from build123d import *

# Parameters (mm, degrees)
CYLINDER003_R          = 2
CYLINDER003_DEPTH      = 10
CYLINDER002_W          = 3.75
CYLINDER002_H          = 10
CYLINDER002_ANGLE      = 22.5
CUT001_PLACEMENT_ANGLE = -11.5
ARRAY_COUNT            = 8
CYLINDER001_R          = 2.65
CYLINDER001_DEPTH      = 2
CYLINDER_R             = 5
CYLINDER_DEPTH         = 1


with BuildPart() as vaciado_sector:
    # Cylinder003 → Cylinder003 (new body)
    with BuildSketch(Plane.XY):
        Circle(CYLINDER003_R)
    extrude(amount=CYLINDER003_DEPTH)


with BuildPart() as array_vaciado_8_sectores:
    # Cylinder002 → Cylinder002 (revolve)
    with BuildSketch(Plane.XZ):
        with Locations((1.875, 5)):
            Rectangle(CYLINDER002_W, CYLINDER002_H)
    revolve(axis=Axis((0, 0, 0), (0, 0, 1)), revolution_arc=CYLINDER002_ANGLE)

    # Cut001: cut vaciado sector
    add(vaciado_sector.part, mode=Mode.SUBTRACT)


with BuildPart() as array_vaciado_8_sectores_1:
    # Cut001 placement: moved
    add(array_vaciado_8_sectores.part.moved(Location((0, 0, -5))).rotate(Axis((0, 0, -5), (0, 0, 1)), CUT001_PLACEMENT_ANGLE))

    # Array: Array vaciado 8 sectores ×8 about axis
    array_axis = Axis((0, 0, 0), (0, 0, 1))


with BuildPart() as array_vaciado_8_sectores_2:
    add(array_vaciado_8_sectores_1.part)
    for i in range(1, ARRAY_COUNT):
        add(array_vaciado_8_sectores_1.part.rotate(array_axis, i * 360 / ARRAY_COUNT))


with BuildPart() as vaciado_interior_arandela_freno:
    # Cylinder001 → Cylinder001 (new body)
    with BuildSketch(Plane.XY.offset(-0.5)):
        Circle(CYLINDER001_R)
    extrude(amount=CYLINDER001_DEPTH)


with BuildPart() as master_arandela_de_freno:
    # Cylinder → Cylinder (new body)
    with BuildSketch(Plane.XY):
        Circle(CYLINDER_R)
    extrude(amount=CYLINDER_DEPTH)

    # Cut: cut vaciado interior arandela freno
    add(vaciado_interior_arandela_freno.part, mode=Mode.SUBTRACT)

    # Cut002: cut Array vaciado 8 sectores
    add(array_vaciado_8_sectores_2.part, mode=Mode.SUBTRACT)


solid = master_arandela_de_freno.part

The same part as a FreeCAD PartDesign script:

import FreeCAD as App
import Part
import Sketcher

V = App.Vector
Q = App.Units.Quantity

doc = App.newDocument("Part")
body = doc.addObject("PartDesign::Body", "Body")

# Sketch on XY plane
sketch1 = doc.addObject("Sketcher::SketchObject", "Sketch")
body.addObject(sketch1)
sketch1.AttachmentSupport = (doc.XY_Plane, [""])
sketch1.MapMode = "FlatFace"
sketch1.addGeometry(Part.Circle(V(0, 0, 0), V(0, 0, 1), 2), False)
sketch1.addConstraint([
    Sketcher.Constraint("Coincident", 0, 3, -1, 1),
    Sketcher.Constraint("Diameter", 0, Q("4 mm")),
])
pad1 = doc.addObject("PartDesign::Pad", "Pad")
body.addObject(pad1)
pad1.Profile = sketch1
pad1.Length = 10
body2 = doc.addObject("PartDesign::Body", "Body001")

# Sketch on XZ plane
sketch2 = doc.addObject("Sketcher::SketchObject", "Sketch001")
body2.addObject(sketch2)
sketch2.AttachmentSupport = (doc.getObject("XZ_Plane001"), [""])
sketch2.MapMode = "FlatFace"
sketch2.addGeometry([
    Part.LineSegment(V(0, 10, 0), V(0, 0, 0)),
    Part.LineSegment(V(0, 0, 0), V(3.8, 0, 0)),
    Part.LineSegment(V(3.8, 0, 0), V(3.8, 10, 0)),
    Part.LineSegment(V(3.8, 10, 0), V(0, 10, 0)),
], False)
sketch2.addConstraint([
    Sketcher.Constraint("Coincident", 0, 2, 1, 1),
    Sketcher.Constraint("Coincident", 1, 2, 2, 1),
    Sketcher.Constraint("Coincident", 2, 2, 3, 1),
    Sketcher.Constraint("Coincident", 3, 2, 0, 1),
    Sketcher.Constraint("Vertical", 0),
    Sketcher.Constraint("Horizontal", 1),
    Sketcher.Constraint("Vertical", 2),
    Sketcher.Constraint("Horizontal", 3),
    Sketcher.Constraint("Coincident", 0, 2, -1, 1),
    Sketcher.Constraint("DistanceY", 0, 2, 0, 1, Q("10 mm")),
    Sketcher.Constraint("DistanceX", 1, 1, 1, 2, Q("3.75 mm")),
])
revolution = doc.addObject("PartDesign::Revolution", "Revolution")
body2.addObject(revolution)
revolution.Profile = sketch2
revolution.ReferenceAxis = (sketch2, ["V_Axis"])
revolution.Angle = 22.5
doc.recompute()

boolean = doc.addObject("PartDesign::Boolean", "Boolean")
body2.addObject(boolean)
boolean.Type = "Cut"
boolean.addObjects([body])
body3 = doc.addObject("PartDesign::Body", "Body002")
doc.recompute()

body2.Placement = App.Placement(V(0, 0, -5), App.Rotation(V(0, 0, 1), 348.5))
boolean2 = doc.addObject("PartDesign::Boolean", "Boolean001")
body3.addObject(boolean2)
boolean2.Type = "Fuse"
boolean2.addObjects([body2])
body4 = doc.addObject("PartDesign::Body", "Body003")
body4.AllowCompound = True
doc.recompute()

body4.BaseFeature = body3
doc.recompute()

body5 = doc.addObject("PartDesign::Body", "Body004")
body5.BaseFeature = body3
body5.Placement = App.Placement(V(0, 0, 0), App.Rotation(V(0, 0, 1), 45))
boolean3 = doc.addObject("PartDesign::Boolean", "Boolean002")
body4.addObject(boolean3)
boolean3.Type = "Fuse"
boolean3.addObjects([body5])
doc.recompute()

body6 = doc.addObject("PartDesign::Body", "Body005")
body6.BaseFeature = body3
body6.Placement = App.Placement(V(0, 0, 0), App.Rotation(V(0, 0, 1), 90))
boolean4 = doc.addObject("PartDesign::Boolean", "Boolean003")
body4.addObject(boolean4)
boolean4.Type = "Fuse"
boolean4.addObjects([body6])
doc.recompute()

body7 = doc.addObject("PartDesign::Body", "Body006")
body7.BaseFeature = body3
body7.Placement = App.Placement(V(0, 0, 0), App.Rotation(V(0, 0, 1), 135))
boolean5 = doc.addObject("PartDesign::Boolean", "Boolean004")
body4.addObject(boolean5)
boolean5.Type = "Fuse"
boolean5.addObjects([body7])
doc.recompute()

body8 = doc.addObject("PartDesign::Body", "Body007")
body8.BaseFeature = body3
body8.Placement = App.Placement(V(0, 0, 0), App.Rotation(V(0, 0, 1), 180))
boolean6 = doc.addObject("PartDesign::Boolean", "Boolean005")
body4.addObject(boolean6)
boolean6.Type = "Fuse"
boolean6.addObjects([body8])
doc.recompute()

body9 = doc.addObject("PartDesign::Body", "Body008")
body9.BaseFeature = body3
body9.Placement = App.Placement(V(0, 0, 0), App.Rotation(V(0, 0, 1), 225))
boolean7 = doc.addObject("PartDesign::Boolean", "Boolean006")
body4.addObject(boolean7)
boolean7.Type = "Fuse"
boolean7.addObjects([body9])
doc.recompute()

body10 = doc.addObject("PartDesign::Body", "Body009")
body10.BaseFeature = body3
body10.Placement = App.Placement(V(0, 0, 0), App.Rotation(V(0, 0, 1), 270))
boolean8 = doc.addObject("PartDesign::Boolean", "Boolean007")
body4.addObject(boolean8)
boolean8.Type = "Fuse"
boolean8.addObjects([body10])
doc.recompute()

body3.Placement = App.Placement(V(0, 0, 0), App.Rotation(V(0, 0, 1), 315))
boolean9 = doc.addObject("PartDesign::Boolean", "Boolean008")
body4.addObject(boolean9)
boolean9.Type = "Fuse"
boolean9.addObjects([body3])
body11 = doc.addObject("PartDesign::Body", "Body010")

# Sketch on XY plane
sketch3 = doc.addObject("Sketcher::SketchObject", "Sketch002")
body11.addObject(sketch3)
sketch3.AttachmentSupport = (doc.getObject("XY_Plane010"), [""])
sketch3.MapMode = "FlatFace"
sketch3.AttachmentOffset = App.Placement(V(0, 0, -0.5), App.Rotation())
sketch3.addGeometry(Part.Circle(V(0, 0, 0), V(0, 0, 1), 2.6), False)
sketch3.addConstraint([
    Sketcher.Constraint("Coincident", 0, 3, -1, 1),
    Sketcher.Constraint("Diameter", 0, Q("5.3 mm")),
])
pad2 = doc.addObject("PartDesign::Pad", "Pad001")
body11.addObject(pad2)
pad2.Profile = sketch3
pad2.Length = 2
body12 = doc.addObject("PartDesign::Body", "Body011")

# Sketch on XY plane
sketch4 = doc.addObject("Sketcher::SketchObject", "Sketch003")
body12.addObject(sketch4)
sketch4.AttachmentSupport = (doc.getObject("XY_Plane011"), [""])
sketch4.MapMode = "FlatFace"
sketch4.addGeometry(Part.Circle(V(0, 0, 0), V(0, 0, 1), 5), False)
sketch4.addConstraint([
    Sketcher.Constraint("Coincident", 0, 3, -1, 1),
    Sketcher.Constraint("Diameter", 0, Q("10 mm")),
])
pad3 = doc.addObject("PartDesign::Pad", "Pad002")
body12.addObject(pad3)
pad3.Profile = sketch4
pad3.Length = 1
doc.recompute()

boolean10 = doc.addObject("PartDesign::Boolean", "Boolean009")
body12.addObject(boolean10)
boolean10.Type = "Cut"
boolean10.addObjects([body11])
doc.recompute()

boolean11 = doc.addObject("PartDesign::Boolean", "Boolean010")
body12.addObject(boolean11)
boolean11.Type = "Cut"
boolean11.addObjects([body4])

doc.recompute()
